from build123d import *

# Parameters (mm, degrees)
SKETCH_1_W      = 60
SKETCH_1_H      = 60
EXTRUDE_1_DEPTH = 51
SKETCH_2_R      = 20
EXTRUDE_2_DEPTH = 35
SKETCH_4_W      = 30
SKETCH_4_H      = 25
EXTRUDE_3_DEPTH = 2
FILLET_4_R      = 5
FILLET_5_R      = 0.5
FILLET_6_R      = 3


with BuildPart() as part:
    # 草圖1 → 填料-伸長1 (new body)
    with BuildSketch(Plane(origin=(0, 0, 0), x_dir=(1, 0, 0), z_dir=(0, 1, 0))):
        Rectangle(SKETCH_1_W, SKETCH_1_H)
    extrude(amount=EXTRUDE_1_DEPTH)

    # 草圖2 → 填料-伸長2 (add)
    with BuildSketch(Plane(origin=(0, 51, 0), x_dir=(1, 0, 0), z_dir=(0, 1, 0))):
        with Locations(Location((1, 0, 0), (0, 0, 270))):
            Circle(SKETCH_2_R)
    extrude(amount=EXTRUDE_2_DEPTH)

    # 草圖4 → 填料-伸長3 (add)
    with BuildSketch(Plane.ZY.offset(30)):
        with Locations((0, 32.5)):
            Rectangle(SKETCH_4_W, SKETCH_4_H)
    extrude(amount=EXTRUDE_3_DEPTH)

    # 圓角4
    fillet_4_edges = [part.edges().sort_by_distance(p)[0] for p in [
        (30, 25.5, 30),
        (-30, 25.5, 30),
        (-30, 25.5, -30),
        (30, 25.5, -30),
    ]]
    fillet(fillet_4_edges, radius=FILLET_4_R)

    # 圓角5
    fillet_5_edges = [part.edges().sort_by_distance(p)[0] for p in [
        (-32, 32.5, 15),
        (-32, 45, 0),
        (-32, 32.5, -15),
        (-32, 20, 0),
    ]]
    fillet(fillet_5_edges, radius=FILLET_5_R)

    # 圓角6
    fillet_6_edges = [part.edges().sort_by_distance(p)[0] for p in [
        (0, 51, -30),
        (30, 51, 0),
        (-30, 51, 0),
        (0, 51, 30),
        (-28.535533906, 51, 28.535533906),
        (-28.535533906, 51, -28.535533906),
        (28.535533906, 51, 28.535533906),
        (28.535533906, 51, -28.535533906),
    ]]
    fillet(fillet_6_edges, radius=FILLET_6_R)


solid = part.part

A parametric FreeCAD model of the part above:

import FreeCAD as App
import Part
import Sketcher
from FreeCAD import Vector


def edges_at(feature, points):
    """Names of the edges that pass closest to the given points."""
    edges = feature.Shape.Edges
    near = lambda p: min(range(len(edges)), key=lambda i: edges[i].distToShape(Part.Vertex(*p))[0])
    return sorted({f"Edge{near(p) + 1}" for p in points})


def add_polygon(sketch, points):
    """Adds a closed chain of lines whose ends are joined by coincident constraints."""
    first, n = sketch.GeometryCount, len(points)
    for a, b in zip(points, points[1:] + points[:1]):
        sketch.addGeometry(Part.LineSegment(App.Vector(*a, 0), App.Vector(*b, 0)), False)
    for i in range(n):
        sketch.addConstraint(Sketcher.Constraint("Coincident", first + i, 2, first + (i + 1) % n, 1))

doc = App.newDocument("Part")
body = doc.addObject("PartDesign::Body", "Body")

sketch1 = body.newObject("Sketcher::SketchObject", "Sketch")
sketch1.AttachmentSupport = (doc.getObject("XZ_Plane"), [""])
sketch1.MapMode = "FlatFace"
add_polygon(sketch1, [(-30, -30), (-30, 30), (30, 30), (30, -30)])
sketch1.addConstraint([
    Sketcher.Constraint("Vertical", 0),
    Sketcher.Constraint("Horizontal", 1),
    Sketcher.Constraint("Vertical", 2),
    Sketcher.Constraint("Horizontal", 3),
    Sketcher.Constraint("Symmetric", 0, 2, 2, 2, -1, 1),
    Sketcher.Constraint("Equal", 3, 0),
    Sketcher.Constraint("DistanceX", 1, 1, 1, 2, 60.0),
])
pad1 = body.newObject("PartDesign::Pad", "Pad")
pad1.Profile = sketch1
pad1.Length = 51
pad1.Reversed = True

sketch2 = body.newObject("Sketcher::SketchObject", "Sketch001")
sketch2.AttachmentSupport = (doc.getObject("XZ_Plane"), [""])
sketch2.MapMode = "FlatFace"
sketch2.AttachmentOffset = App.Placement(Vector(0, 0, -51), App.Rotation())
sketch2.addGeometry(Part.Circle(Vector(1, 0, 0), Vector(0, 0, 1), 20), False)
sketch2.addConstraint([
    Sketcher.Constraint("PointOnObject", 0, 3, -1),
    Sketcher.Constraint("Diameter", 0, 40.0),
    Sketcher.Constraint("DistanceX", -1, 1, 0, 3, 1.0),
])
pad2 = body.newObject("PartDesign::Pad", "Pad001")
pad2.Profile = sketch2
pad2.Length = 35
pad2.Reversed = True

sketch3 = body.newObject("Sketcher::SketchObject", "Sketch002")
sketch3.AttachmentSupport = (doc.getObject("YZ_Plane"), [""])
sketch3.MapMode = "FlatFace"
sketch3.AttachmentOffset = App.Placement(Vector(0, 0, -30), App.Rotation())
add_polygon(sketch3, [(45, -15), (20, -15), (20, 15), (45, 15)])
sketch3.addConstraint([
    Sketcher.Constraint("Horizontal", 0),
    Sketcher.Constraint("Vertical", 1),
    Sketcher.Constraint("Horizontal", 2),
    Sketcher.Constraint("Vertical", 3),
    Sketcher.Constraint("DistanceX", 0, 2, 0, 1, 25.0),
    Sketcher.Constraint("DistanceY", 1, 1, 1, 2, 30.0),
    Sketcher.Constraint("DistanceX", -1, 1, 0, 2, 20.0),
    Sketcher.Constraint("DistanceY", 0, 2, -1, 1, 15.0),
])
pad3 = body.newObject("PartDesign::Pad", "Pad002")
pad3.Profile = sketch3
pad3.Length = 2
pad3.Reversed = True
doc.recompute()

fillet = body.newObject("PartDesign::Fillet", "Fillet")
fillet.Base = (pad3, edges_at(pad3, [
    (30, 25.5, 30),
    (-30, 25.5, 30),
    (-30, 25.5, -30),
    (30, 25.5, -30),
]))
fillet.Radius = 5
doc.recompute()

fillet2 = body.newObject("PartDesign::Fillet", "Fillet001")
fillet2.Base = (fillet, edges_at(fillet, [
    (-32, 32.5, 15),
    (-32, 45, 0),
    (-32, 32.5, -15),
    (-32, 20, 0),
]))
fillet2.Radius = 0.5
doc.recompute()

fillet3 = body.newObject("PartDesign::Fillet", "Fillet002")
fillet3.Base = (fillet2, edges_at(fillet2, [
    (0, 51, -30),
    (30, 51, 0),
    (-30, 51, 0),
    (0, 51, 30),
    (-28.536, 51, 28.536),
    (-28.536, 51, -28.536),
    (28.536, 51, 28.536),
    (28.536, 51, -28.536),
]))
fillet3.Radius = 3

doc.recompute()
